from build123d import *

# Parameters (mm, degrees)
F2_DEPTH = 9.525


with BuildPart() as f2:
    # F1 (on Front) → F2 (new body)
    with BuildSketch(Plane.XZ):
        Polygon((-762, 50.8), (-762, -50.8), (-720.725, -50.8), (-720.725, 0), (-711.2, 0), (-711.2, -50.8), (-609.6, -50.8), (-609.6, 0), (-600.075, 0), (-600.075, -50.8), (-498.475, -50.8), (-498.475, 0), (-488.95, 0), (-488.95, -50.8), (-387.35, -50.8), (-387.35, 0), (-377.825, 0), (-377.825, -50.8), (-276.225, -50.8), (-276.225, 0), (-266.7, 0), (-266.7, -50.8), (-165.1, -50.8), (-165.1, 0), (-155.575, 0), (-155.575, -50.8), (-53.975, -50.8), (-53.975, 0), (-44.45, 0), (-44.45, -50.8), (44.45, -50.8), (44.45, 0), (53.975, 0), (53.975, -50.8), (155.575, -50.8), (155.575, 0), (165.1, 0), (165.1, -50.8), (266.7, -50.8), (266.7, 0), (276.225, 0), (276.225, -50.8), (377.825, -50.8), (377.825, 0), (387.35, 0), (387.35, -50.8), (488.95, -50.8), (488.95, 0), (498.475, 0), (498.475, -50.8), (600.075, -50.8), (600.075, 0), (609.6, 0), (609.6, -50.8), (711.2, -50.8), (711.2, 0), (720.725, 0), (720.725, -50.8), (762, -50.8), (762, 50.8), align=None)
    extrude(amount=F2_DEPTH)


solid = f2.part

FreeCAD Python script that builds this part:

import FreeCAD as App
import Part
import Sketcher
Q = App.Units.Quantity

doc = App.newDocument("Part")
body = doc.addObject("PartDesign::Body", "Body")

sketch1 = body.newObject("Sketcher::SketchObject", "Sketch")
sketch1.AttachmentSupport = (doc.getObject("XZ_Plane"), [""])
sketch1.MapMode = "FlatFace"
sketch1.addGeometry(Part.LineSegment(App.Vector(-762, 50.8, 0), App.Vector(-762, -50.8, 0)), False)
sketch1.addGeometry(Part.LineSegment(App.Vector(-762, -50.8, 0), App.Vector(-720.725, -50.8, 0)), False)
sketch1.addGeometry(Part.LineSegment(App.Vector(-720.725, -50.8, 0), App.Vector(-720.725, 0, 0)), False)
sketch1.addGeometry(Part.LineSegment(App.Vector(-720.725, 0, 0), App.Vector(-711.2, 0, 0)), False)
sketch1.addGeometry(Part.LineSegment(App.Vector(-711.2, 0, 0), App.Vector(-711.2, -50.8, 0)), False)
sketch1.addGeometry(Part.LineSegment(App.Vector(-711.2, -50.8, 0), App.Vector(-609.6, -50.8, 0)), False)
sketch1.addGeometry(Part.LineSegment(App.Vector(-609.6, -50.8, 0), App.Vector(-609.6, 0, 0)), False)
sketch1.addGeometry(Part.LineSegment(App.Vector(-609.6, 0, 0), App.Vector(-600.075, 0, 0)), False)
sketch1.addGeometry(Part.LineSegment(App.Vector(-600.075, 0, 0), App.Vector(-600.075, -50.8, 0)), False)
sketch1.addGeometry(Part.LineSegment(App.Vector(-600.075, -50.8, 0), App.Vector(-498.475, -50.8, 0)), False)
sketch1.addGeometry(Part.LineSegment(App.Vector(-498.475, -50.8, 0), App.Vector(-498.475, 0, 0)), False)
sketch1.addGeometry(Part.LineSegment(App.Vector(-498.475, 0, 0), App.Vector(-488.95, 0, 0)), False)
sketch1.addGeometry(Part.LineSegment(App.Vector(-488.95, 0, 0), App.Vector(-488.95, -50.8, 0)), False)
sketch1.addGeometry(Part.LineSegment(App.Vector(-488.95, -50.8, 0), App.Vector(-387.35, -50.8, 0)), False)
sketch1.addGeometry(Part.LineSegment(App.Vector(-387.35, -50.8, 0), App.Vector(-387.35, 0, 0)), False)
sketch1.addGeometry(Part.LineSegment(App.Vector(-387.35, 0, 0), App.Vector(-377.825, 0, 0)), False)
sketch1.addGeometry(Part.LineSegment(App.Vector(-377.825, 0, 0), App.Vector(-377.825, -50.8, 0)), False)
sketch1.addGeometry(Part.LineSegment(App.Vector(-377.825, -50.8, 0), App.Vector(-276.225, -50.8, 0)), False)
sketch1.addGeometry(Part.LineSegment(App.Vector(-276.225, -50.8, 0), App.Vector(-276.225, 0, 0)), False)
sketch1.addGeometry(Part.LineSegment(App.Vector(-276.225, 0, 0), App.Vector(-266.7, 0, 0)), False)
sketch1.addGeometry(Part.LineSegment(App.Vector(-266.7, 0, 0), App.Vector(-266.7, -50.8, 0)), False)
sketch1.addGeometry(Part.LineSegment(App.Vector(-266.7, -50.8, 0), App.Vector(-165.1, -50.8, 0)), False)
sketch1.addGeometry(Part.LineSegment(App.Vector(-165.1, -50.8, 0), App.Vector(-165.1, 0, 0)), False)
sketch1.addGeometry(Part.LineSegment(App.Vector(-165.1, 0, 0), App.Vector(-155.575, 0, 0)), False)
sketch1.addGeometry(Part.LineSegment(App.Vector(-155.575, 0, 0), App.Vector(-155.575, -50.8, 0)), False)
sketch1.addGeometry(Part.LineSegment(App.Vector(-155.575, -50.8, 0), App.Vector(-53.975, -50.8, 0)), False)
sketch1.addGeometry(Part.LineSegment(App.Vector(-53.975, -50.8, 0), App.Vector(-53.975, 0, 0)), False)
sketch1.addGeometry(Part.LineSegment(App.Vector(-53.975, 0, 0), App.Vector(-44.45, 0, 0)), False)
sketch1.addGeometry(Part.LineSegment(App.Vector(-44.45, 0, 0), App.Vector(-44.45, -50.8, 0)), False)
sketch1.addGeometry(Part.LineSegment(App.Vector(-44.45, -50.8, 0), App.Vector(44.45, -50.8, 0)), False)
sketch1.addGeometry(Part.LineSegment(App.Vector(44.45, -50.8, 0), App.Vector(44.45, 0, 0)), False)
sketch1.addGeometry(Part.LineSegment(App.Vector(44.45, 0, 0), App.Vector(53.975, 0, 0)), False)
sketch1.addGeometry(Part.LineSegment(App.Vector(53.975, 0, 0), App.Vector(53.975, -50.8, 0)), False)
sketch1.addGeometry(Part.LineSegment(App.Vector(53.975, -50.8, 0), App.Vector(155.575, -50.8, 0)), False)
sketch1.addGeometry(Part.LineSegment(App.Vector(155.575, -50.8, 0), App.Vector(155.575, 0, 0)), False)
sketch1.addGeometry(Part.LineSegment(App.Vector(155.575, 0, 0), App.Vector(165.1, 0, 0)), False)
sketch1.addGeometry(Part.LineSegment(App.Vector(165.1, 0, 0), App.Vector(165.1, -50.8, 0)), False)
sketch1.addGeometry(Part.LineSegment(App.Vector(165.1, -50.8, 0), App.Vector(266.7, -50.8, 0)), False)
sketch1.addGeometry(Part.LineSegment(App.Vector(266.7, -50.8, 0), App.Vector(266.7, 0, 0)), False)
sketch1.addGeometry(Part.LineSegment(App.Vector(266.7, 0, 0), App.Vector(276.225, 0, 0)), False)
sketch1.addGeometry(Part.LineSegment(App.Vector(276.225, 0, 0), App.Vector(276.225, -50.8, 0)), False)
sketch1.addGeometry(Part.LineSegment(App.Vector(276.225, -50.8, 0), App.Vector(377.825, -50.8, 0)), False)
sketch1.addGeometry(Part.LineSegment(App.Vector(377.825, -50.8, 0), App.Vector(377.825, 0, 0)), False)
sketch1.addGeometry(Part.LineSegment(App.Vector(377.825, 0, 0), App.Vector(387.35, 0, 0)), False)
sketch1.addGeometry(Part.LineSegment(App.Vector(387.35, 0, 0), App.Vector(387.35, -50.8, 0)), False)
sketch1.addGeometry(Part.LineSegment(App.Vector(387.35, -50.8, 0), App.Vector(488.95, -50.8, 0)), False)
sketch1.addGeometry(Part.LineSegment(App.Vector(488.95, -50.8, 0), App.Vector(488.95, 0, 0)), False)
sketch1.addGeometry(Part.LineSegment(App.Vector(488.95, 0, 0), App.Vector(498.475, 0, 0)), False)
sketch1.addGeometry(Part.LineSegment(App.Vector(498.475, 0, 0), App.Vector(498.475, -50.8, 0)), False)
sketch1.addGeometry(Part.LineSegment(App.Vector(498.475, -50.8, 0), App.Vector(600.075, -50.8, 0)), False)
sketch1.addGeometry(Part.LineSegment(App.Vector(600.075, -50.8, 0), App.Vector(600.075, 0, 0)), False)
sketch1.addGeometry(Part.LineSegment(App.Vector(600.075, 0, 0), App.Vector(609.6, 0, 0)), False)
sketch1.addGeometry(Part.LineSegment(App.Vector(609.6, 0, 0), App.Vector(609.6, -50.8, 0)), False)
sketch1.addGeometry(Part.LineSegment(App.Vector(609.6, -50.8, 0), App.Vector(711.2, -50.8, 0)), False)
sketch1.addGeometry(Part.LineSegment(App.Vector(711.2, -50.8, 0), App.Vector(711.2, 0, 0)), False)
sketch1.addGeometry(Part.LineSegment(App.Vector(711.2, 0, 0), App.Vector(720.725, 0, 0)), False)
sketch1.addGeometry(Part.LineSegment(App.Vector(720.725, 0, 0), App.Vector(720.725, -50.8, 0)), False)
sketch1.addGeometry(Part.LineSegment(App.Vector(720.725, -50.8, 0), App.Vector(762, -50.8, 0)), False)
sketch1.addGeometry(Part.LineSegment(App.Vector(762, -50.8, 0), App.Vector(762, 50.8, 0)), False)
sketch1.addGeometry(Part.LineSegment(App.Vector(762, 50.8, 0), App.Vector(-762, 50.8, 0)), False)
sketch1.addConstraint(Sketcher.Constraint("Coincident", 0, 2, 1, 1))
sketch1.addConstraint(Sketcher.Constraint("Coincident", 1, 2, 2, 1))
sketch1.addConstraint(Sketcher.Constraint("Coincident", 2, 2, 3, 1))
sketch1.addConstraint(Sketcher.Constraint("Coincident", 3, 2, 4, 1))
sketch1.addConstraint(Sketcher.Constraint("Coincident", 4, 2, 5, 1))
sketch1.addConstraint(Sketcher.Constraint("Coincident", 5, 2, 6, 1))
sketch1.addConstraint(Sketcher.Constraint("Coincident", 6, 2, 7, 1))
sketch1.addConstraint(Sketcher.Constraint("Coincident", 7, 2, 8, 1))
sketch1.addConstraint(Sketcher.Constraint("Coincident", 8, 2, 9, 1))
sketch1.addConstraint(Sketcher.Constraint("Coincident", 9, 2, 10, 1))
sketch1.addConstraint(Sketcher.Constraint("Coincident", 10, 2, 11, 1))
sketch1.addConstraint(Sketcher.Constraint("Coincident", 11, 2, 12, 1))
sketch1.addConstraint(Sketcher.Constraint("Coincident", 12, 2, 13, 1))
sketch1.addConstraint(Sketcher.Constraint("Coincident", 13, 2, 14, 1))
sketch1.addConstraint(Sketcher.Constraint("Coincident", 14, 2, 15, 1))
sketch1.addConstraint(Sketcher.Constraint("Coincident", 15, 2, 16, 1))
sketch1.addConstraint(Sketcher.Constraint("Coincident", 16, 2, 17, 1))
sketch1.addConstraint(Sketcher.Constraint("Coincident", 17, 2, 18, 1))
sketch1.addConstraint(Sketcher.Constraint("Coincident", 18, 2, 19, 1))
sketch1.addConstraint(Sketcher.Constraint("Coincident", 19, 2, 20, 1))
sketch1.addConstraint(Sketcher.Constraint("Coincident", 20, 2, 21, 1))
sketch1.addConstraint(Sketcher.Constraint("Coincident", 21, 2, 22, 1))
sketch1.addConstraint(Sketcher.Constraint("Coincident", 22, 2, 23, 1))
sketch1.addConstraint(Sketcher.Constraint("Coincident", 23, 2, 24, 1))
sketch1.addConstraint(Sketcher.Constraint("Coincident", 24, 2, 25, 1))
sketch1.addConstraint(Sketcher.Constraint("Coincident", 25, 2, 26, 1))
sketch1.addConstraint(Sketcher.Constraint("Coincident", 26, 2, 27, 1))
sketch1.addConstraint(Sketcher.Constraint("Coincident", 27, 2, 28, 1))
sketch1.addConstraint(Sketcher.Constraint("Coincident", 28, 2, 29, 1))
sketch1.addConstraint(Sketcher.Constraint("Coincident", 29, 2, 30, 1))
sketch1.addConstraint(Sketcher.Constraint("Coincident", 30, 2, 31, 1))
sketch1.addConstraint(Sketcher.Constraint("Coincident", 31, 2, 32, 1))
sketch1.addConstraint(Sketcher.Constraint("Coincident", 32, 2, 33, 1))
sketch1.addConstraint(Sketcher.Constraint("Coincident", 33, 2, 34, 1))
sketch1.addConstraint(Sketcher.Constraint("Coincident", 34, 2, 35, 1))
sketch1.addConstraint(Sketcher.Constraint("Coincident", 35, 2, 36, 1))
sketch1.addConstraint(Sketcher.Constraint("Coincident", 36, 2, 37, 1))
sketch1.addConstraint(Sketcher.Constraint("Coincident", 37, 2, 38, 1))
sketch1.addConstraint(Sketcher.Constraint("Coincident", 38, 2, 39, 1))
sketch1.addConstraint(Sketcher.Constraint("Coincident", 39, 2, 40, 1))
sketch1.addConstraint(Sketcher.Constraint("Coincident", 40, 2, 41, 1))
sketch1.addConstraint(Sketcher.Constraint("Coincident", 41, 2, 42, 1))
sketch1.addConstraint(Sketcher.Constraint("Coincident", 42, 2, 43, 1))
sketch1.addConstraint(Sketcher.Constraint("Coincident", 43, 2, 44, 1))
sketch1.addConstraint(Sketcher.Constraint("Coincident", 44, 2, 45, 1))
sketch1.addConstraint(Sketcher.Constraint("Coincident", 45, 2, 46, 1))
sketch1.addConstraint(Sketcher.Constraint("Coincident", 46, 2, 47, 1))
sketch1.addConstraint(Sketcher.Constraint("Coincident", 47, 2, 48, 1))
sketch1.addConstraint(Sketcher.Constraint("Coincident", 48, 2, 49, 1))
sketch1.addConstraint(Sketcher.Constraint("Coincident", 49, 2, 50, 1))
sketch1.addConstraint(Sketcher.Constraint("Coincident", 50, 2, 51, 1))
sketch1.addConstraint(Sketcher.Constraint("Coincident", 51, 2, 52, 1))
sketch1.addConstraint(Sketcher.Constraint("Coincident", 52, 2, 53, 1))
sketch1.addConstraint(Sketcher.Constraint("Coincident", 53, 2, 54, 1))
sketch1.addConstraint(Sketcher.Constraint("Coincident", 54, 2, 55, 1))
sketch1.addConstraint(Sketcher.Constraint("Coincident", 55, 2, 56, 1))
sketch1.addConstraint(Sketcher.Constraint("Coincident", 56, 2, 57, 1))
sketch1.addConstraint(Sketcher.Constraint("Coincident", 57, 2, 58, 1))
sketch1.addConstraint(Sketcher.Constraint("Coincident", 58, 2, 59, 1))
sketch1.addConstraint(Sketcher.Constraint("Coincident", 59, 2, 0, 1))
sketch1.addConstraint(Sketcher.Constraint("Vertical", 0))
sketch1.addConstraint(Sketcher.Constraint("Horizontal", 1))
sketch1.addConstraint(Sketcher.Constraint("Vertical", 2))
sketch1.addConstraint(Sketcher.Constraint("Horizontal", 3))
sketch1.addConstraint(Sketcher.Constraint("Vertical", 4))
sketch1.addConstraint(Sketcher.Constraint("Horizontal", 5))
sketch1.addConstraint(Sketcher.Constraint("Vertical", 6))
sketch1.addConstraint(Sketcher.Constraint("Horizontal", 7))
sketch1.addConstraint(Sketcher.Constraint("Vertical", 8))
sketch1.addConstraint(Sketcher.Constraint("Horizontal", 9))
sketch1.addConstraint(Sketcher.Constraint("Vertical", 10))
sketch1.addConstraint(Sketcher.Constraint("Horizontal", 11))
sketch1.addConstraint(Sketcher.Constraint("Vertical", 12))
sketch1.addConstraint(Sketcher.Constraint("Horizontal", 13))
sketch1.addConstraint(Sketcher.Constraint("Vertical", 14))
sketch1.addConstraint(Sketcher.Constraint("Horizontal", 15))
sketch1.addConstraint(Sketcher.Constraint("Vertical", 16))
sketch1.addConstraint(Sketcher.Constraint("Horizontal", 17))
sketch1.addConstraint(Sketcher.Constraint("Vertical", 18))
sketch1.addConstraint(Sketcher.Constraint("Horizontal", 19))
sketch1.addConstraint(Sketcher.Constraint("Vertical", 20))
sketch1.addConstraint(Sketcher.Constraint("Horizontal", 21))
sketch1.addConstraint(Sketcher.Constraint("Vertical", 22))
sketch1.addConstraint(Sketcher.Constraint("Horizontal", 23))
sketch1.addConstraint(Sketcher.Constraint("Vertical", 24))
sketch1.addConstraint(Sketcher.Constraint("Horizontal", 25))
sketch1.addConstraint(Sketcher.Constraint("Vertical", 26))
sketch1.addConstraint(Sketcher.Constraint("Horizontal", 27))
sketch1.addConstraint(Sketcher.Constraint("Vertical", 28))
sketch1.addConstraint(Sketcher.Constraint("Horizontal", 29))
sketch1.addConstraint(Sketcher.Constraint("Vertical", 30))
sketch1.addConstraint(Sketcher.Constraint("Horizontal", 31))
sketch1.addConstraint(Sketcher.Constraint("Vertical", 32))
sketch1.addConstraint(Sketcher.Constraint("Horizontal", 33))
sketch1.addConstraint(Sketcher.Constraint("Vertical", 34))
sketch1.addConstraint(Sketcher.Constraint("Horizontal", 35))
sketch1.addConstraint(Sketcher.Constraint("Vertical", 36))
sketch1.addConstraint(Sketcher.Constraint("Horizontal", 37))
sketch1.addConstraint(Sketcher.Constraint("Vertical", 38))
sketch1.addConstraint(Sketcher.Constraint("Horizontal", 39))
sketch1.addConstraint(Sketcher.Constraint("Vertical", 40))
sketch1.addConstraint(Sketcher.Constraint("Horizontal", 41))
sketch1.addConstraint(Sketcher.Constraint("Vertical", 42))
sketch1.addConstraint(Sketcher.Constraint("Horizontal", 43))
sketch1.addConstraint(Sketcher.Constraint("Vertical", 44))
sketch1.addConstraint(Sketcher.Constraint("Horizontal", 45))
sketch1.addConstraint(Sketcher.Constraint("Vertical", 46))
sketch1.addConstraint(Sketcher.Constraint("Horizontal", 47))
sketch1.addConstraint(Sketcher.Constraint("Vertical", 48))
sketch1.addConstraint(Sketcher.Constraint("Horizontal", 49))
sketch1.addConstraint(Sketcher.Constraint("Vertical", 50))
sketch1.addConstraint(Sketcher.Constraint("Horizontal", 51))
sketch1.addConstraint(Sketcher.Constraint("Vertical", 52))
sketch1.addConstraint(Sketcher.Constraint("Horizontal", 53))
sketch1.addConstraint(Sketcher.Constraint("Vertical", 54))
sketch1.addConstraint(Sketcher.Constraint("Horizontal", 55))
sketch1.addConstraint(Sketcher.Constraint("Vertical", 56))
sketch1.addConstraint(Sketcher.Constraint("Horizontal", 57))
sketch1.addConstraint(Sketcher.Constraint("Vertical", 58))
sketch1.addConstraint(Sketcher.Constraint("Horizontal", 59))
sketch1.addConstraint(Sketcher.Constraint("Symmetric", 27, 2, 30, 2, -1, 1))
sketch1.addConstraint(Sketcher.Constraint("Symmetric", 23, 2, 34, 2, -1, 1))
sketch1.addConstraint(Sketcher.Constraint("Symmetric", 19, 2, 38, 2, -1, 1))
sketch1.addConstraint(Sketcher.Constraint("Symmetric", 15, 2, 42, 2, -1, 1))
sketch1.addConstraint(Sketcher.Constraint("Symmetric", 11, 2, 46, 2, -1, 1))
sketch1.addConstraint(Sketcher.Constraint("Symmetric", 7, 2, 50, 2, -1, 1))
sketch1.addConstraint(Sketcher.Constraint("Symmetric", 3, 2, 54, 2, -1, 1))
sketch1.addConstraint(Sketcher.Constraint("Symmetric", 0, 2, 58, 2, -1, 1))
sketch1.addConstraint(Sketcher.Constraint("Symmetric", 26, 2, 31, 2, -2))
sketch1.addConstraint(Sketcher.Constraint("Symmetric", 22, 2, 35, 2, -2))
sketch1.addConstraint(Sketcher.Constraint("Symmetric", 18, 2, 39, 2, -2))
sketch1.addConstraint(Sketcher.Constraint("Symmetric", 14, 2, 43, 2, -2))
sketch1.addConstraint(Sketcher.Constraint("Symmetric", 10, 2, 47, 2, -2))
sketch1.addConstraint(Sketcher.Constraint("Symmetric", 6, 2, 51, 2, -2))
sketch1.addConstraint(Sketcher.Constraint("Symmetric", 2, 2, 55, 2, -2))
sketch1.addConstraint(Sketcher.Constraint("Horizontal", 1, 2, 4, 2))
sketch1.addConstraint(Sketcher.Constraint("Horizontal", 5, 2, 8, 2))
sketch1.addConstraint(Sketcher.Constraint("Horizontal", 9, 2, 12, 2))
sketch1.addConstraint(Sketcher.Constraint("Horizontal", 13, 2, 16, 2))
sketch1.addConstraint(Sketcher.Constraint("Horizontal", 17, 2, 20, 2))
sketch1.addConstraint(Sketcher.Constraint("Horizontal", 21, 2, 24, 2))
sketch1.addConstraint(Sketcher.Constraint("Horizontal", 25, 2, 28, 2))
sketch1.addConstraint(Sketcher.Constraint("Horizontal", 29, 2, 32, 2))
sketch1.addConstraint(Sketcher.Constraint("Horizontal", 33, 2, 36, 2))
sketch1.addConstraint(Sketcher.Constraint("Horizontal", 37, 2, 40, 2))
sketch1.addConstraint(Sketcher.Constraint("Horizontal", 41, 2, 44, 2))
sketch1.addConstraint(Sketcher.Constraint("Horizontal", 45, 2, 48, 2))
sketch1.addConstraint(Sketcher.Constraint("Horizontal", 49, 2, 52, 2))
sketch1.addConstraint(Sketcher.Constraint("Horizontal", 53, 2, 56, 2))
sketch1.addConstraint(Sketcher.Constraint("Equal", 3, 7))
sketch1.addConstraint(Sketcher.Constraint("Equal", 5, 9))
sketch1.addConstraint(Sketcher.Constraint("Equal", 7, 11))
sketch1.addConstraint(Sketcher.Constraint("Equal", 9, 13))
sketch1.addConstraint(Sketcher.Constraint("Equal", 11, 15))
sketch1.addConstraint(Sketcher.Constraint("Equal", 13, 17))
sketch1.addConstraint(Sketcher.Constraint("Equal", 15, 19))
sketch1.addConstraint(Sketcher.Constraint("Equal", 17, 21))
sketch1.addConstraint(Sketcher.Constraint("Equal", 19, 23))
sketch1.addConstraint(Sketcher.Constraint("Equal", 21, 25))
sketch1.addConstraint(Sketcher.Constraint("Equal", 23, 27))
sketch1.addConstraint(Sketcher.Constraint("Equal", 53, 0))
sketch1.addConstraint(Sketcher.Constraint("DistanceX", 5, 1, 5, 2, Q("4 in")))
sketch1.addConstraint(Sketcher.Constraint("DistanceX", 59, 2, 59, 1, Q("60 in")))
sketch1.addConstraint(Sketcher.Constraint("DistanceX", 29, 1, 29, 2, Q("3.5 in")))
sketch1.addConstraint(Sketcher.Constraint("DistanceX", 3, 2, -1, 1, Q("28 in")))
pad1 = body.newObject("PartDesign::Pad", "Pad")
pad1.Profile = sketch1
pad1.Length = Q("0.375 in")

doc.recompute()
